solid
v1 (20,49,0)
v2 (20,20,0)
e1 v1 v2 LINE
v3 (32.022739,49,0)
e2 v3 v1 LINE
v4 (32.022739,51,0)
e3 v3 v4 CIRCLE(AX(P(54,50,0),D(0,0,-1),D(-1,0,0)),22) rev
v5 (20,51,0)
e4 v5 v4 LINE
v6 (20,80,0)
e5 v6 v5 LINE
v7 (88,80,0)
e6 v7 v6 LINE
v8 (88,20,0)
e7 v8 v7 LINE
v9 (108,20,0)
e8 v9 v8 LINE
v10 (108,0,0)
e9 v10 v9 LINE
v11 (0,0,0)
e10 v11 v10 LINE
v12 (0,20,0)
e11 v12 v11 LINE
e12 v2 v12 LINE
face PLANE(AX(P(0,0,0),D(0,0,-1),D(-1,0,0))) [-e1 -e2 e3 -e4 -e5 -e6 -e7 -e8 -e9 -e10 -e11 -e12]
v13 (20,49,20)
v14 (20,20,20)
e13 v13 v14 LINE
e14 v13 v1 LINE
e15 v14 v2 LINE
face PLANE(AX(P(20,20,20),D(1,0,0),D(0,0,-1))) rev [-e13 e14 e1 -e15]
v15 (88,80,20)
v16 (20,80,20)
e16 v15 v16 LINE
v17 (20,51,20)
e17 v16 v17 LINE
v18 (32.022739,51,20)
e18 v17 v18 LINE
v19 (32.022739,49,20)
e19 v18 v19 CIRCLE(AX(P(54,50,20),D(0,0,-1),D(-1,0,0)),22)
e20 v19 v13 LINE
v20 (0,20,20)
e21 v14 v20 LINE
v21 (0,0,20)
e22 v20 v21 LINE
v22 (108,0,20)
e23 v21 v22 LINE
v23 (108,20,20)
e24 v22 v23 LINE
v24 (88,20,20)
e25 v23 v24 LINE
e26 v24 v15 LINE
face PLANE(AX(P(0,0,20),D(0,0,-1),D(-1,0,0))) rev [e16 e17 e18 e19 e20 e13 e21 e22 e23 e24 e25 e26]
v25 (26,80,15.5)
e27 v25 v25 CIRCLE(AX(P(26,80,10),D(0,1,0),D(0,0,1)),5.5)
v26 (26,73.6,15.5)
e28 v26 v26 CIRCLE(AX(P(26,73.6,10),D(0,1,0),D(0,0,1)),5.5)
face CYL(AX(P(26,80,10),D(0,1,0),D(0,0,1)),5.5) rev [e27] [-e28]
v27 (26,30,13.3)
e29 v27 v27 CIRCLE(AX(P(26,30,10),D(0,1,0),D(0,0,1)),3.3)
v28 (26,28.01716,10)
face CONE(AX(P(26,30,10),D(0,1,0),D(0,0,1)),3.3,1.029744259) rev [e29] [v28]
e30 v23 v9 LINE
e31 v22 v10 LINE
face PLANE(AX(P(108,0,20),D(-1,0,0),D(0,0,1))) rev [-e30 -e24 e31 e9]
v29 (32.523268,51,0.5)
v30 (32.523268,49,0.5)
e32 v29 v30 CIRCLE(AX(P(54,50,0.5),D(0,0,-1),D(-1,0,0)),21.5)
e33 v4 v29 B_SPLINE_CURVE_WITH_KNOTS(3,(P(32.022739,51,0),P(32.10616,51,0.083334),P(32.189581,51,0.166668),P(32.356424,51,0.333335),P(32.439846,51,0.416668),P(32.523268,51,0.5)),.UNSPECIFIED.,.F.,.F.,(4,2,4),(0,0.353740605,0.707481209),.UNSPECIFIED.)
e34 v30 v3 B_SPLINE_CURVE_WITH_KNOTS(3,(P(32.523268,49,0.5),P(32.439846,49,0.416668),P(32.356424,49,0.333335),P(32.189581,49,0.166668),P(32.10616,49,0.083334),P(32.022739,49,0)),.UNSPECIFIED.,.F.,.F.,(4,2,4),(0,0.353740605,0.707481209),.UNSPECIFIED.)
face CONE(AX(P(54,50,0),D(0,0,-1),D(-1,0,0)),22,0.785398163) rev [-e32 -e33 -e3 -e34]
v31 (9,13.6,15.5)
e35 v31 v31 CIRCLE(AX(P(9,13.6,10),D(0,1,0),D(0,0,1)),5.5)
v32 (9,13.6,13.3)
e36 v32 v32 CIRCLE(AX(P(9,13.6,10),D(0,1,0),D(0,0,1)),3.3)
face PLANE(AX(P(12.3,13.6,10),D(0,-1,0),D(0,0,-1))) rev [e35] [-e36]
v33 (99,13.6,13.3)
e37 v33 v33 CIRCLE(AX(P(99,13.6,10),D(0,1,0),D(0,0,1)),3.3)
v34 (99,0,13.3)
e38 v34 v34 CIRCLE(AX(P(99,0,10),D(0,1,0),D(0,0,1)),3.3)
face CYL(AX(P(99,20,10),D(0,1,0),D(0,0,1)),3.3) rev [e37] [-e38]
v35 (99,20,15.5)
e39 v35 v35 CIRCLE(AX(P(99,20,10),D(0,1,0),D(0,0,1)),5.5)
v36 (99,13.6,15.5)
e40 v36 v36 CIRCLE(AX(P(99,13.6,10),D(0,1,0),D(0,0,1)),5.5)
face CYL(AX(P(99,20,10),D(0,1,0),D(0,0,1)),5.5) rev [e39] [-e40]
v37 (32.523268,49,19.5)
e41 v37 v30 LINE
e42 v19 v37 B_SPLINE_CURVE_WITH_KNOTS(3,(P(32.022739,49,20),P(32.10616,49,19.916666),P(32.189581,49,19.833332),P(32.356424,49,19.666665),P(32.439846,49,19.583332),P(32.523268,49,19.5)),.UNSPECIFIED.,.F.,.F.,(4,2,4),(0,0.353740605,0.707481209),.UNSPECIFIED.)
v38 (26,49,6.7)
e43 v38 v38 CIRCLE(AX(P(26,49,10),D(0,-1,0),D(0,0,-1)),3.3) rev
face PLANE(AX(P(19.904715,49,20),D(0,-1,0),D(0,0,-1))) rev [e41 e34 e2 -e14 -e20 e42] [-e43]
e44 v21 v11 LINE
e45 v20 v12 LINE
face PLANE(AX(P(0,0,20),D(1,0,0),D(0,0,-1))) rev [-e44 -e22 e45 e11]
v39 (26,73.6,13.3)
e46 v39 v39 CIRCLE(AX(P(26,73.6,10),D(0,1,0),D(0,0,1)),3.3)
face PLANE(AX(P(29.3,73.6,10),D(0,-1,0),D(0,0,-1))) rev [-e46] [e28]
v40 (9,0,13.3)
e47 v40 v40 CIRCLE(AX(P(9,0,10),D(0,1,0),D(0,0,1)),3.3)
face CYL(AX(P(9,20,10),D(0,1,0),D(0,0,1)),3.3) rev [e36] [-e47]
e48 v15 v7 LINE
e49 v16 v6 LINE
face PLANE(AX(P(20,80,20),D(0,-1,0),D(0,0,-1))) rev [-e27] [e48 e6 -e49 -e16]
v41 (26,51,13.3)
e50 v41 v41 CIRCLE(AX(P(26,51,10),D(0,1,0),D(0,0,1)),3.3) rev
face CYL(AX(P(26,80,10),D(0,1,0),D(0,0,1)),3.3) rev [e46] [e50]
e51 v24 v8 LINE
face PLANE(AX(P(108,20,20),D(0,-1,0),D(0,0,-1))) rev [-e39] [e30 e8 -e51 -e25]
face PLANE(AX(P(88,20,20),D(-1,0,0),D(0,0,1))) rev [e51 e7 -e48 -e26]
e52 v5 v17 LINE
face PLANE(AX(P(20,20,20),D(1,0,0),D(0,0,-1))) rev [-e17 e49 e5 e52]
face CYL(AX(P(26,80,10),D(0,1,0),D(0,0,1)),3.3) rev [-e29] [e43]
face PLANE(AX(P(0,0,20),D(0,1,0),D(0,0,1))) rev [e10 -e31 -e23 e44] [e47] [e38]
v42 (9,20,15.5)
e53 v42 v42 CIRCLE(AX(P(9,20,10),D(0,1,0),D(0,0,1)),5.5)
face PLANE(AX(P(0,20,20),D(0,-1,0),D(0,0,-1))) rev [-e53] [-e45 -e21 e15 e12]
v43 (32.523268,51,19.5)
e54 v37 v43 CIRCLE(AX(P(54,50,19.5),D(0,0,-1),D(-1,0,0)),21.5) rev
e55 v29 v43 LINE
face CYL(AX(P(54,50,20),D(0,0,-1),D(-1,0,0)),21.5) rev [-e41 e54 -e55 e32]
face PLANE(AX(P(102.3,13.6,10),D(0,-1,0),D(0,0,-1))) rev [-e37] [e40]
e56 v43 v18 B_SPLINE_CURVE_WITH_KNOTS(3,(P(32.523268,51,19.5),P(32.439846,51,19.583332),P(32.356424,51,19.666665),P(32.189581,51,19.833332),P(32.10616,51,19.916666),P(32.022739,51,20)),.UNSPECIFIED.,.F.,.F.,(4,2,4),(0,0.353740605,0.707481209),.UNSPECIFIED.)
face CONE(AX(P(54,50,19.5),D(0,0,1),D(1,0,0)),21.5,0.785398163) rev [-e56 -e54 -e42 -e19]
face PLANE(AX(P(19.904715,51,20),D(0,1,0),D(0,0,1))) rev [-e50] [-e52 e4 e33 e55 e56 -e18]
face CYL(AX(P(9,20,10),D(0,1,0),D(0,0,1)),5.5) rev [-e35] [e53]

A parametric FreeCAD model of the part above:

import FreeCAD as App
import Part
import Sketcher

V = App.Vector


def edges_at(feature, points):
    """Names of the edges that pass closest to the given points."""
    edges = feature.Shape.Edges
    near = lambda p: min(range(len(edges)), key=lambda i: edges[i].distToShape(Part.Vertex(*p))[0])
    return sorted({f"Edge{near(p) + 1}" for p in points})

doc = App.newDocument("Part")
body = doc.addObject("PartDesign::Body", "Body")

sketch1 = body.newObject("Sketcher::SketchObject", "Sketch")
sketch1.AttachmentSupport = (doc.getObject("XY_Plane"), [""])
sketch1.MapMode = "FlatFace"
sketch1.addGeometry([
    Part.LineSegment(V(0, 0, 0), V(108, 0, 0)),
    Part.LineSegment(V(108, 0, 0), V(108, 20, 0)),
    Part.LineSegment(V(108, 20, 0), V(88, 20, 0)),
    Part.LineSegment(V(88, 20, 0), V(88, 80, 0)),
    Part.LineSegment(V(88, 80, 0), V(20, 80, 0)),
    Part.LineSegment(V(20, 80, 0), V(20, 20, 0)),
    Part.LineSegment(V(20, 20, 0), V(0, 20, 0)),
    Part.LineSegment(V(0, 20, 0), V(0, 0, 0)),
    Part.Circle(V(54, 50, 0), V(0, 0, 1), 21.5),
], False)
sketch1.addConstraint([
    Sketcher.Constraint("Coincident", 0, 2, 1, 1),
    Sketcher.Constraint("Coincident", 1, 2, 2, 1),
    Sketcher.Constraint("Coincident", 2, 2, 3, 1),
    Sketcher.Constraint("Coincident", 3, 2, 4, 1),
    Sketcher.Constraint("Coincident", 4, 2, 5, 1),
    Sketcher.Constraint("Coincident", 5, 2, 6, 1),
    Sketcher.Constraint("Coincident", 6, 2, 7, 1),
    Sketcher.Constraint("Coincident", 7, 2, 0, 1),
    Sketcher.Constraint("Horizontal", 0),
    Sketcher.Constraint("Vertical", 1),
    Sketcher.Constraint("Horizontal", 2),
    Sketcher.Constraint("Vertical", 3),
    Sketcher.Constraint("Horizontal", 4),
    Sketcher.Constraint("Vertical", 5),
    Sketcher.Constraint("Horizontal", 6),
    Sketcher.Constraint("Vertical", 7),
    Sketcher.Constraint("Coincident", 7, 2, -1, 1),
    Sketcher.Constraint("Horizontal", 2, 2, 5, 2),
    Sketcher.Constraint("Equal", 2, 6),
    Sketcher.Constraint("Equal", 6, 1),
    Sketcher.Constraint("Diameter", 8, 43.0),
    Sketcher.Constraint("DistanceX", 0, 1, 0, 2, 108.0),
    Sketcher.Constraint("DistanceX", 2, 2, 2, 1, 20.0),
    Sketcher.Constraint("DistanceY", 3, 1, 3, 2, 60.0),
    Sketcher.Constraint("DistanceX", -1, 1, 8, 3, 54.0),
    Sketcher.Constraint("DistanceY", -1, 1, 8, 3, 50.0),
])
pad1 = body.newObject("PartDesign::Pad", "Pad")
pad1.Profile = sketch1
pad1.Length = 20

sketch2 = body.newObject("Sketcher::SketchObject", "Sketch001")
sketch2.AttachmentSupport = (doc.getObject("XZ_Plane"), [""])
sketch2.MapMode = "FlatFace"
sketch2.AttachmentOffset = App.Placement(V(0, 0, -20), App.Rotation())
sketch2.addGeometry([
    Part.Circle(V(9, 10, 0), V(0, 0, 1), 3.3),
    Part.Circle(V(99, 10, 0), V(0, 0, 1), 3.3),
], False)
sketch2.addConstraint([
    Sketcher.Constraint("Equal", 0, 1),
    Sketcher.Constraint("Horizontal", 0, 3, 1, 3),
    Sketcher.Constraint("Diameter", 0, 6.6),
    Sketcher.Constraint("DistanceX", -1, 1, 0, 3, 9.0),
    Sketcher.Constraint("DistanceY", -1, 1, 0, 3, 10.0),
    Sketcher.Constraint("DistanceX", -1, 1, 1, 3, 99.0),
])
doc.recompute()
hole = body.newObject("PartDesign::Hole", "Hole")
hole.Profile = sketch2
hole.ThreadType = "None"
hole.Diameter = 6.6
hole.DepthType = "ThroughAll"
hole.HoleCutType = "Counterbore"
hole.HoleCutDiameter = 11
hole.HoleCutDepth = 6.4
hole.Reversed = True

sketch3 = body.newObject("Sketcher::SketchObject", "Sketch002")
sketch3.AttachmentSupport = (doc.getObject("XZ_Plane"), [""])
sketch3.MapMode = "FlatFace"
sketch3.AttachmentOffset = App.Placement(V(0, 0, -80), App.Rotation())
sketch3.addGeometry(Part.Circle(V(26, 10, 0), V(0, 0, 1), 3.3), False)
sketch3.addConstraint([
    Sketcher.Constraint("Diameter", 0, 6.6),
    Sketcher.Constraint("DistanceX", -1, 1, 0, 3, 26.0),
    Sketcher.Constraint("DistanceY", -1, 1, 0, 3, 10.0),
])
doc.recompute()
hole2 = body.newObject("PartDesign::Hole", "Hole001")
hole2.Profile = sketch3
hole2.ThreadType = "None"
hole2.Diameter = 6.6
hole2.DepthType = "Dimension"
hole2.Depth = 50
hole2.DrillPoint = "Angled"
hole2.DrillPointAngle = 118
hole2.HoleCutType = "Counterbore"
hole2.HoleCutDiameter = 11
hole2.HoleCutDepth = 6.4
hole2.Reversed = True

sketch4 = body.newObject("Sketcher::SketchObject", "Sketch003")
sketch4.AttachmentSupport = (doc.getObject("XY_Plane"), [""])
sketch4.MapMode = "FlatFace"
sketch4.addGeometry([
    Part.LineSegment(V(35.426089, 51, 0), V(35.426089, 49, 0)),
    Part.LineSegment(V(35.426089, 49, 0), V(19.904715, 49, 0)),
    Part.LineSegment(V(19.904715, 49, 0), V(19.904715, 51, 0)),
    Part.LineSegment(V(19.904715, 51, 0), V(35.426089, 51, 0)),
], False)
sketch4.addConstraint([
    Sketcher.Constraint("Coincident", 0, 2, 1, 1),
    Sketcher.Constraint("Coincident", 1, 2, 2, 1),
    Sketcher.Constraint("Coincident", 2, 2, 3, 1),
    Sketcher.Constraint("Coincident", 3, 2, 0, 1),
    Sketcher.Constraint("Vertical", 0),
    Sketcher.Constraint("Horizontal", 1),
    Sketcher.Constraint("Vertical", 2),
    Sketcher.Constraint("Horizontal", 3),
    Sketcher.Constraint("DistanceY", 0, 2, 0, 1, 2.0),
    Sketcher.Constraint("DistanceY", -1, 1, 0, 2, 49.0),
    Sketcher.Constraint("DistanceX", 1, 2, 1, 1, 15.521374),
    Sketcher.Constraint("DistanceX", -1, 1, 0, 2, 35.426089),
])
pocket1 = body.newObject("PartDesign::Pocket", "Pocket")
pocket1.Profile = sketch4
pocket1.Type = "ThroughAll"
pocket1.Reversed = True
doc.recompute()

chamfer = body.newObject("PartDesign::Chamfer", "Chamfer")
chamfer.Base = (pocket1, edges_at(pocket1, [(54.5, 71.494, 0)]))
chamfer.Size = 0.5
doc.recompute()

chamfer2 = body.newObject("PartDesign::Chamfer", "Chamfer001")
chamfer2.Base = (chamfer, edges_at(chamfer, [(54.5, 28.506, 20)]))
chamfer2.Size = 0.5

doc.recompute()
